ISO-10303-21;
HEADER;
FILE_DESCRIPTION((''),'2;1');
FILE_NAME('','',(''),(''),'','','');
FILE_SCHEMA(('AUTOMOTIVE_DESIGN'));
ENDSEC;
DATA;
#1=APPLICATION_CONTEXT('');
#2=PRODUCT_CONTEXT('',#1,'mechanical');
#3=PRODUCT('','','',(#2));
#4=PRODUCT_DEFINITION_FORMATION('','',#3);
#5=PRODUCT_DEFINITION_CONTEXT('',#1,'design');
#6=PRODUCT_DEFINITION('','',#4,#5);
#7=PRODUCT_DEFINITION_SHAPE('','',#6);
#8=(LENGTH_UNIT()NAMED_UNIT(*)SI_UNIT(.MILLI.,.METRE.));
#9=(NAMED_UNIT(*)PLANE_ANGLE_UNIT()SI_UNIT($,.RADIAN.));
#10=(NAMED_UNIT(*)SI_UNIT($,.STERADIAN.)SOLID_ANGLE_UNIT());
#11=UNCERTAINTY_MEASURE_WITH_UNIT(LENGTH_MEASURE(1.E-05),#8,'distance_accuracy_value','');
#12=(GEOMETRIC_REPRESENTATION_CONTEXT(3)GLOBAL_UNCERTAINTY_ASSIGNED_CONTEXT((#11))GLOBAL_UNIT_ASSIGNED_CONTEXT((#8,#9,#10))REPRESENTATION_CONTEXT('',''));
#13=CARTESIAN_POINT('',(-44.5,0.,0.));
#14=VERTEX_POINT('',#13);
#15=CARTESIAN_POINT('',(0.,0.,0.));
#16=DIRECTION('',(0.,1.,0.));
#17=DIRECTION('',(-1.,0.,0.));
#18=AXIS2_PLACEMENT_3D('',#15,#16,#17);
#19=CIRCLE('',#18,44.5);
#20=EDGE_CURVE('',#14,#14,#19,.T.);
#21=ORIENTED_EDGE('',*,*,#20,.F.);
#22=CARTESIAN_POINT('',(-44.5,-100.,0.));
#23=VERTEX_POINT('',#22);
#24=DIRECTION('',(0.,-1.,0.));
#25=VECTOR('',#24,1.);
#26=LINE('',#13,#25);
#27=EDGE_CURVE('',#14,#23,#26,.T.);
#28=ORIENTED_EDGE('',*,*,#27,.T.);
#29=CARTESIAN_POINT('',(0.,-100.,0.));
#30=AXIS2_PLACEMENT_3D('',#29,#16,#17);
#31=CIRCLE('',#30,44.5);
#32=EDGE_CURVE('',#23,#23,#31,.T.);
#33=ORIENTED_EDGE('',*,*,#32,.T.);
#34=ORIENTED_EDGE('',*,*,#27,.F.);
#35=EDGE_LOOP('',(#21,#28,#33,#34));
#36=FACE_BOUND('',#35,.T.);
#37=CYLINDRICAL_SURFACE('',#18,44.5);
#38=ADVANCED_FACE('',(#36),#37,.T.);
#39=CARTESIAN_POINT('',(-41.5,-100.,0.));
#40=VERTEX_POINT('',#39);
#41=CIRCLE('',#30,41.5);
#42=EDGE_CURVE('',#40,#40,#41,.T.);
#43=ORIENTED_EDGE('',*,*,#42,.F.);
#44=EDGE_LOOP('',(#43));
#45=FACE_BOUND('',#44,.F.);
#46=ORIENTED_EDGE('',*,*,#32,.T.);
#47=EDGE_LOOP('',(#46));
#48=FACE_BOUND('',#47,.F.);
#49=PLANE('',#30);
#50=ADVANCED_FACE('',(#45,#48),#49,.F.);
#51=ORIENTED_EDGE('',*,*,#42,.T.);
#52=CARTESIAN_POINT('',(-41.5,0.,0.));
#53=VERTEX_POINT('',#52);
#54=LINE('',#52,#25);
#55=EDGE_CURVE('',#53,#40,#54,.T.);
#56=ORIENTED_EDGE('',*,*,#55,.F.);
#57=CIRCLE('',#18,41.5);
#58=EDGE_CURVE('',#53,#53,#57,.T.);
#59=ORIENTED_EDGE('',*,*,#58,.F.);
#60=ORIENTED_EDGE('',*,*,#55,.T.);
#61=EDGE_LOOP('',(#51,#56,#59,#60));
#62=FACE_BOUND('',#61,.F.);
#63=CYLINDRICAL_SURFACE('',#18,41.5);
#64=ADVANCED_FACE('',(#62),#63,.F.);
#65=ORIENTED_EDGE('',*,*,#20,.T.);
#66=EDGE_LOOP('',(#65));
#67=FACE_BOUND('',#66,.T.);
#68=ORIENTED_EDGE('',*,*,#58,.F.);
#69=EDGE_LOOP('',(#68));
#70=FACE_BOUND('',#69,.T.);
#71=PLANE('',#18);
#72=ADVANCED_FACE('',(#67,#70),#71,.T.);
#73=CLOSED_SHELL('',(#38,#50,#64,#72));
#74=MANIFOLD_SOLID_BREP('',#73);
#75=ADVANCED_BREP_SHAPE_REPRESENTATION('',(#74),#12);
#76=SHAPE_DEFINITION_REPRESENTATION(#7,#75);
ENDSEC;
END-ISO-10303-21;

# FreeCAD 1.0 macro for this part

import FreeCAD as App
import Part
import Sketcher
from FreeCAD import Vector

doc = App.newDocument("Part")
body = doc.addObject("PartDesign::Body", "Body")

sketch1 = body.newObject("Sketcher::SketchObject", "Sketch")
sketch1.AttachmentSupport = (doc.getObject("XZ_Plane"), [""])
sketch1.MapMode = "FlatFace"
sketch1.addGeometry(Part.Circle(Vector(0, 0, 0), Vector(0, 0, 1), 44), False)
sketch1.addGeometry(Part.Circle(Vector(0, 0, 0), Vector(0, 0, 1), 42), False)
sketch1.addConstraint(Sketcher.Constraint("Coincident", 0, 3, -1, 1))
sketch1.addConstraint(Sketcher.Constraint("Coincident", 1, 3, -1, 1))
sketch1.addConstraint(Sketcher.Constraint("Diameter", 0, 89.0))
sketch1.addConstraint(Sketcher.Constraint("Diameter", 1, 83.0))
pad1 = body.newObject("PartDesign::Pad", "Pad")
pad1.Profile = sketch1
pad1.Length = 100

doc.recompute()
